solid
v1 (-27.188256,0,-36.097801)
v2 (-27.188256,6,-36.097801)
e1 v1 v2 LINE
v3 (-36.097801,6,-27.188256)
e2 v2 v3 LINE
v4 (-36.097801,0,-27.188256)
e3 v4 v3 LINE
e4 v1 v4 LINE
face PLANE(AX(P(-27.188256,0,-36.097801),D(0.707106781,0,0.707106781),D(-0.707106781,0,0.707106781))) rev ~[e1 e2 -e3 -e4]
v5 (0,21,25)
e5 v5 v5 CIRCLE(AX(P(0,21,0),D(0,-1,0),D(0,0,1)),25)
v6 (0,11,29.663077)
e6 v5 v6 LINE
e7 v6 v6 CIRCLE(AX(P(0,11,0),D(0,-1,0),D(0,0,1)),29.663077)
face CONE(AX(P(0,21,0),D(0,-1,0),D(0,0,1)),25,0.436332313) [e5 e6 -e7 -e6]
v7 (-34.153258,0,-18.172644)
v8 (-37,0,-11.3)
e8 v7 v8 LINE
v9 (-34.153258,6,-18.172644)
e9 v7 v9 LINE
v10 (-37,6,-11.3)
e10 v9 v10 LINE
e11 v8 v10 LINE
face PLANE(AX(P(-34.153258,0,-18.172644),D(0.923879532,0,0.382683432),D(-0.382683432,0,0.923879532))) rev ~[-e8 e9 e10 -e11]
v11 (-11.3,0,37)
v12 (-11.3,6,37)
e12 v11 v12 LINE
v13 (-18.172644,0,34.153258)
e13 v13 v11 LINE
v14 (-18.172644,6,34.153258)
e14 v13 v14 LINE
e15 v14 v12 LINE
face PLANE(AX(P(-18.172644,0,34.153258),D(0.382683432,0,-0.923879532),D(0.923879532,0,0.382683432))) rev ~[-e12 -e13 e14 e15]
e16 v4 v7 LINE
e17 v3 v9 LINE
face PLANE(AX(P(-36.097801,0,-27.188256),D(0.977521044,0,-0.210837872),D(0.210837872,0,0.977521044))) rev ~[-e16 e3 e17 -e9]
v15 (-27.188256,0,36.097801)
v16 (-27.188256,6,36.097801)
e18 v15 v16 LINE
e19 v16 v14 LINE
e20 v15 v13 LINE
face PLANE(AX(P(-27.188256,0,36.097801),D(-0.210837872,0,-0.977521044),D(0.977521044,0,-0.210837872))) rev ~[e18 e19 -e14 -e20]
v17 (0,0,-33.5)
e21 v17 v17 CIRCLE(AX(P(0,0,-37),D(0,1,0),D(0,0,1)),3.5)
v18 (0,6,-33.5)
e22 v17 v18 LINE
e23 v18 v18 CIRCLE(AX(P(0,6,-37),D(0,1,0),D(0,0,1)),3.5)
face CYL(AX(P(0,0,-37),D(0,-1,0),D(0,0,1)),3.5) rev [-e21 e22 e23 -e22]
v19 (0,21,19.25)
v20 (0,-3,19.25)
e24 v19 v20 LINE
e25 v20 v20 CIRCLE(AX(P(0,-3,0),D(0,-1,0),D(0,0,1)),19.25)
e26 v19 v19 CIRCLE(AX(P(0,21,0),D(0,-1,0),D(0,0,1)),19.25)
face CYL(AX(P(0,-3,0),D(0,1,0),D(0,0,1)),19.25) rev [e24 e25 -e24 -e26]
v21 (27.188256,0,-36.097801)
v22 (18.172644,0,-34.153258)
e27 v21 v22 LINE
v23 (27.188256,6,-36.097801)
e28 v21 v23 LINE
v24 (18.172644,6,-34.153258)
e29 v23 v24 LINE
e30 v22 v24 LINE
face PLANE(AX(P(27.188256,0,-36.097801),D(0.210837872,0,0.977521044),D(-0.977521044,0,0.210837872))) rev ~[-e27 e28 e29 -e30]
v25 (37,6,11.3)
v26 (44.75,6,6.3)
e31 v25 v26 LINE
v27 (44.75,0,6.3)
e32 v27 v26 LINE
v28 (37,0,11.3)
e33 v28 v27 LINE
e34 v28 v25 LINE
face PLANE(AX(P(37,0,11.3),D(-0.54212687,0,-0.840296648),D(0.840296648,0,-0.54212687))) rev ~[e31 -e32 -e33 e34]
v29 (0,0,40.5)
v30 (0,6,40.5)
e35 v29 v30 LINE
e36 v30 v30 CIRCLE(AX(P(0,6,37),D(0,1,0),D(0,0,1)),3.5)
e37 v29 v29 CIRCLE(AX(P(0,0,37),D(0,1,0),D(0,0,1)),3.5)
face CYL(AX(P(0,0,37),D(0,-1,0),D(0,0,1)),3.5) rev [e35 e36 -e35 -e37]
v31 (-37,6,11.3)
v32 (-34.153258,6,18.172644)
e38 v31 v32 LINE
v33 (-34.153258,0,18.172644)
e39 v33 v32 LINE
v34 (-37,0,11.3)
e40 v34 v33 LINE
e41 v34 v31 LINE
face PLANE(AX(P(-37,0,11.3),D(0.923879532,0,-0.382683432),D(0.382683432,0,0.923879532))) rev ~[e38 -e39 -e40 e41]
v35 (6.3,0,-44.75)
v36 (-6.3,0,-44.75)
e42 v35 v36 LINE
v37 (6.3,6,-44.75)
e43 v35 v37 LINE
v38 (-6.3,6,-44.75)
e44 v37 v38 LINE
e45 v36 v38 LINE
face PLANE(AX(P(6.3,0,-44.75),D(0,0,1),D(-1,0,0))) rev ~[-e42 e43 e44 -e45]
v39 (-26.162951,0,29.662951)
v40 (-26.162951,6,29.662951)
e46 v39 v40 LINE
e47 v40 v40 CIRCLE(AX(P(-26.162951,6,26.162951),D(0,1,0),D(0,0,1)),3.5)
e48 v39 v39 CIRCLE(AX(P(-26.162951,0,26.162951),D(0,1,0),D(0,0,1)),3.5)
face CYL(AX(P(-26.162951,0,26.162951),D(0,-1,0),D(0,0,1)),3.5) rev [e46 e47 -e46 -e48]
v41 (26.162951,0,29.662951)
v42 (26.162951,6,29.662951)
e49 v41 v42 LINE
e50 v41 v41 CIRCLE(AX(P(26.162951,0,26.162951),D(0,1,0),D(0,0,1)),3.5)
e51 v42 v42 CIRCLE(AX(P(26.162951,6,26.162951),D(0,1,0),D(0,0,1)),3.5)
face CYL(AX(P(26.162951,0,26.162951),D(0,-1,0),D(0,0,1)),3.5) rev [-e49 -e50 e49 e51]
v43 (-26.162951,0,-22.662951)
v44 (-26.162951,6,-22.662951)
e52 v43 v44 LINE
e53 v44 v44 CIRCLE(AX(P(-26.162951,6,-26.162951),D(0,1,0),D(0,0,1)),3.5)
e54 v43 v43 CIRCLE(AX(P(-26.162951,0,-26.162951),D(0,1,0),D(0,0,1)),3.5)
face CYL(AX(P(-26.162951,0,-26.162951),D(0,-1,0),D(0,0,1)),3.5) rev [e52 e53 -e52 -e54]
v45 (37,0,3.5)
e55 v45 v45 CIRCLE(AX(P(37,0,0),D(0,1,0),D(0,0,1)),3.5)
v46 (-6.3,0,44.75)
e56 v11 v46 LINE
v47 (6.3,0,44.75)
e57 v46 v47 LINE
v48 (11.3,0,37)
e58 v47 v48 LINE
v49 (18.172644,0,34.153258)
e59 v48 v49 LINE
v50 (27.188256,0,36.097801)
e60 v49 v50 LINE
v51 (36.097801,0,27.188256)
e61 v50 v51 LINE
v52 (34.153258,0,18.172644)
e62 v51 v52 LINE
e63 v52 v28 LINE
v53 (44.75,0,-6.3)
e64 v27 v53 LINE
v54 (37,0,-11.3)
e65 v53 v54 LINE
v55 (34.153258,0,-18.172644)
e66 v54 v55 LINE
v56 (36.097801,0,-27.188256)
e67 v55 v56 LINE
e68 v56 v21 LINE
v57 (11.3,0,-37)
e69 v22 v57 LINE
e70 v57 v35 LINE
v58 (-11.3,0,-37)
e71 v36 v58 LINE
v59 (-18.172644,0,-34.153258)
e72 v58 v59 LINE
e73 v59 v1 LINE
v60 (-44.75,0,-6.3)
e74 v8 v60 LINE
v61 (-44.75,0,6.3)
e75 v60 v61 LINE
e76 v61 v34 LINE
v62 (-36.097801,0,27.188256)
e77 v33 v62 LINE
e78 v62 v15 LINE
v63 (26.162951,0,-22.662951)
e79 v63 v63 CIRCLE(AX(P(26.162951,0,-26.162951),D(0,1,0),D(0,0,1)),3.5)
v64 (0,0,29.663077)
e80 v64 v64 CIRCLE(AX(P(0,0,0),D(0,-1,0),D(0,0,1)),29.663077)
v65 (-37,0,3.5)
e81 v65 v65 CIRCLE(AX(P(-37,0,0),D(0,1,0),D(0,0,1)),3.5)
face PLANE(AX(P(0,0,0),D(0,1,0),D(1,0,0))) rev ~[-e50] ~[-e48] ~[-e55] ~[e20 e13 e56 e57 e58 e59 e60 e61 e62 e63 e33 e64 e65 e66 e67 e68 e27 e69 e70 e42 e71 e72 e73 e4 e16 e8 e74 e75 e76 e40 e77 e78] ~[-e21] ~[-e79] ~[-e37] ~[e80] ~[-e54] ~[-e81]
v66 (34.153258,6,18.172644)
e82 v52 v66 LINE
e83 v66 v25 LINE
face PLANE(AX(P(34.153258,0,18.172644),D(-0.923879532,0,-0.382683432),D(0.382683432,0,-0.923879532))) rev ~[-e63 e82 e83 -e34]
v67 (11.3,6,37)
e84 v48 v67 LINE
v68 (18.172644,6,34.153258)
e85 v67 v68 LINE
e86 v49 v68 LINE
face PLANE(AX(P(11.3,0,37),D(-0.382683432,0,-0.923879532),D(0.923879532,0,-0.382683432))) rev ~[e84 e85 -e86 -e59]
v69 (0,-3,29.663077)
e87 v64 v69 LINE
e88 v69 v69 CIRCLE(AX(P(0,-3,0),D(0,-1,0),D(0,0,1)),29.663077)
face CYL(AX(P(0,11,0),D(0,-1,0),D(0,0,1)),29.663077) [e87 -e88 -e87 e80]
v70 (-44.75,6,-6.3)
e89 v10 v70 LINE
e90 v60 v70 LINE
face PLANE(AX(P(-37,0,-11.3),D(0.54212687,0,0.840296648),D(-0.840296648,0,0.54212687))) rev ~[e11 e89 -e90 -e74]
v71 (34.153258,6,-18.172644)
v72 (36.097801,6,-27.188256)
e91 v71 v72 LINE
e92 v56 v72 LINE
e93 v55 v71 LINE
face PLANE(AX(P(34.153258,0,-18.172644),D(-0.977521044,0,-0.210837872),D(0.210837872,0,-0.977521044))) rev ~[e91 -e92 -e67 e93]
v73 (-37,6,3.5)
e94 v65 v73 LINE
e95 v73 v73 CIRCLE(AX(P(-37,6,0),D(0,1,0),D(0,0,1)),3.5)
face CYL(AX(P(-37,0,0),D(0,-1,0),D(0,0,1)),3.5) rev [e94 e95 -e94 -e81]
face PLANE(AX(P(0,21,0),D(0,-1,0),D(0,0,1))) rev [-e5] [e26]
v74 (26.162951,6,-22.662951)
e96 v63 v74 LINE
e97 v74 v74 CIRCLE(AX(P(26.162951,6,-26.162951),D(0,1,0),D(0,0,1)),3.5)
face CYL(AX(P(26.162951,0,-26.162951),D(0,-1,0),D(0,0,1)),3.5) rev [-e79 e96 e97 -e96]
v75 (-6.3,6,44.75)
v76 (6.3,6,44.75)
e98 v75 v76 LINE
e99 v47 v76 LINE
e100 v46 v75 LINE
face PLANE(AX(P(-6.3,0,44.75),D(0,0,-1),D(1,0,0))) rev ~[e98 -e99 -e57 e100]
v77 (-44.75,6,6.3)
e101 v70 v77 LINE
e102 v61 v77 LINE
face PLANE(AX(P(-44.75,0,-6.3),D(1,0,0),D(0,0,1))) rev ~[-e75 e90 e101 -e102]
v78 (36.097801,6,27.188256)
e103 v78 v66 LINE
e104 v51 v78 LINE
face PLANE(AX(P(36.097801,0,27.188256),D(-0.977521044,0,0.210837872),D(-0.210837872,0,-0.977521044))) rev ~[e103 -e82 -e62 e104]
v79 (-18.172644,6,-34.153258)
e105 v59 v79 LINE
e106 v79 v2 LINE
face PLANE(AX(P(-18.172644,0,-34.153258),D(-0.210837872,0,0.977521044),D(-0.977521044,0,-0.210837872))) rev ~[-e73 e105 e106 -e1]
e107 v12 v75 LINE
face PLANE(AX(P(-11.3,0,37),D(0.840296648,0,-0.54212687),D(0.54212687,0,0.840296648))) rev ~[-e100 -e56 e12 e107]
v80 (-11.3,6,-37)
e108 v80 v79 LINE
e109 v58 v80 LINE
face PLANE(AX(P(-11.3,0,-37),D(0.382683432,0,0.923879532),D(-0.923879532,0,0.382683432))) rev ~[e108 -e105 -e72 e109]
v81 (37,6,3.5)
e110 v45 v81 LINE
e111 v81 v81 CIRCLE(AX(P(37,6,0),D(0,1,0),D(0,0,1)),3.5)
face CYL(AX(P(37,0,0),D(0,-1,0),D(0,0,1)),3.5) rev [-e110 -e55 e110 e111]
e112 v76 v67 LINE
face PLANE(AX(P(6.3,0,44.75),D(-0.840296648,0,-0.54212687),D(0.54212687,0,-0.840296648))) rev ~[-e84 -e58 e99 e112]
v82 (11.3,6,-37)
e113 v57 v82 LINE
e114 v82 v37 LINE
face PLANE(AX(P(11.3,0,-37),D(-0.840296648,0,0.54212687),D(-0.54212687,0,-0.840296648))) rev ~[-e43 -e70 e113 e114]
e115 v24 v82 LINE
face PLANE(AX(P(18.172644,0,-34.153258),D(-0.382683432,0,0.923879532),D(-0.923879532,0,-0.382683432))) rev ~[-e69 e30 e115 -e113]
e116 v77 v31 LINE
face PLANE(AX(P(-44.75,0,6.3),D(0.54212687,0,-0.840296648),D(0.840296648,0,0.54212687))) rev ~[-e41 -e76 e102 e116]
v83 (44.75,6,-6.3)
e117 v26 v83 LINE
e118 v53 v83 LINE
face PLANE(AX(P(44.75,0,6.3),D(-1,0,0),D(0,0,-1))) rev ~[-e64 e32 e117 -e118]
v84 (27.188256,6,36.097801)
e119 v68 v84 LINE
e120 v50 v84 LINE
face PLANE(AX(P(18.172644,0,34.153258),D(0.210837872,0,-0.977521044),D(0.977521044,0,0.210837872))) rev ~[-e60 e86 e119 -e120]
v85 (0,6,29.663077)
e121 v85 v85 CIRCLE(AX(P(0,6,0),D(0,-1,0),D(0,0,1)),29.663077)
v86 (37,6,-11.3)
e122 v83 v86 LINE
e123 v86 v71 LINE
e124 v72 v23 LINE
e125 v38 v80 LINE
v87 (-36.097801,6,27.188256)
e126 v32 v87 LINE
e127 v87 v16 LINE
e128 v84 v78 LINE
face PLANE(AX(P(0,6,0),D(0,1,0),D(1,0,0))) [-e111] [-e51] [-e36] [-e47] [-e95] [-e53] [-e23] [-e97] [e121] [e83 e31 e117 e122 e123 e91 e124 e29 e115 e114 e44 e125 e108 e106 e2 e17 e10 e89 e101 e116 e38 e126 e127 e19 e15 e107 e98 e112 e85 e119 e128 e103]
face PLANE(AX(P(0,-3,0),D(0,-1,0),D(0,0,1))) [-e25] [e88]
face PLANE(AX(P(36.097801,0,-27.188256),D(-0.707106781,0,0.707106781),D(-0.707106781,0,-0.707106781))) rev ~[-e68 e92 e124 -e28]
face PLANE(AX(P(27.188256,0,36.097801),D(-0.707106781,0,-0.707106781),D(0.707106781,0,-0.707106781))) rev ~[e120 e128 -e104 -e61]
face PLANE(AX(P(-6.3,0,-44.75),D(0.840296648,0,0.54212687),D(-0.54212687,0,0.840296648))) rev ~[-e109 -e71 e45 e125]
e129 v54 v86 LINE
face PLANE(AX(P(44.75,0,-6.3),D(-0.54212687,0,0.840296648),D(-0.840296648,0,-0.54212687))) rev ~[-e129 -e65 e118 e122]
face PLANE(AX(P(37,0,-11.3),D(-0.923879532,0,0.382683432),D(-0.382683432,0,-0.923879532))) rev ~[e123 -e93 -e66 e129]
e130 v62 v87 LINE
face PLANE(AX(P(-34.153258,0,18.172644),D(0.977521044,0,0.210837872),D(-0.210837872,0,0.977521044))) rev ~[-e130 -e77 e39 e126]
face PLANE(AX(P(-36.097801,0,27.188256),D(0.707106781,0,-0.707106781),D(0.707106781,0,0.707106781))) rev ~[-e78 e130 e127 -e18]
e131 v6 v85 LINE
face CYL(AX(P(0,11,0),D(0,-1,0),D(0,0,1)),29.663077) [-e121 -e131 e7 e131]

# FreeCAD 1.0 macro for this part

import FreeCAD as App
import Part
import Sketcher
from FreeCAD import Vector
Q = App.Units.Quantity


def add_polygon(sketch, points):
    """Adds a closed chain of lines whose ends are joined by coincident constraints."""
    first, n = sketch.GeometryCount, len(points)
    for a, b in zip(points, points[1:] + points[:1]):
        sketch.addGeometry(Part.LineSegment(App.Vector(*a, 0), App.Vector(*b, 0)), False)
    for i in range(n):
        sketch.addConstraint(Sketcher.Constraint("Coincident", first + i, 2, first + (i + 1) % n, 1))

doc = App.newDocument("Part")
body = doc.addObject("PartDesign::Body", "Body")

sketch1 = body.newObject("Sketcher::SketchObject", "Sketch")
sketch1.AttachmentSupport = (doc.getObject("XZ_Plane"), [""])
sketch1.MapMode = "FlatFace"
add_polygon(sketch1, [(27.2, -36.1), (18.2, -34.2), (11.3, -37), (6.3, -44.8), (-6.3, -44.8), (-11.3, -37), (-18.2, -34.2), (-27.2, -36.1), (-36.1, -27.2), (-34.2, -18.2), (-37, -11.3), (-44.8, -6.3), (-44.8, 6.3), (-37, 11.3), (-34.2, 18.2), (-36.1, 27.2), (-27.2, 36.1), (-18.2, 34.2), (-11.3, 37), (-6.3, 44.8), (6.3, 44.8), (11.3, 37), (18.2, 34.2), (27.2, 36.1), (36.1, 27.2), (34.2, 18.2), (37, 11.3), (44.8, 6.3), (44.8, -6.3), (37, -11.3), (34.2, -18.2), (36.1, -27.2)])
sketch1.addGeometry(Part.Circle(Vector(-26.2, 26.2, 0), Vector(0, 0, 1), 3.5), False)
sketch1.addGeometry(Part.Circle(Vector(0, 37, 0), Vector(0, 0, 1), 3.5), False)
sketch1.addGeometry(Part.Circle(Vector(26.2, 26.2, 0), Vector(0, 0, 1), 3.5), False)
sketch1.addGeometry(Part.Circle(Vector(-37, 0, 0), Vector(0, 0, 1), 3.5), False)
sketch1.addGeometry(Part.Circle(Vector(-26.2, -26.2, 0), Vector(0, 0, 1), 3.5), False)
sketch1.addGeometry(Part.Circle(Vector(0, 0, 0), Vector(0, 0, 1), 19.2), False)
sketch1.addGeometry(Part.Circle(Vector(37, 0, 0), Vector(0, 0, 1), 3.5), False)
sketch1.addGeometry(Part.Circle(Vector(0, -37, 0), Vector(0, 0, 1), 3.5), False)
sketch1.addGeometry(Part.Circle(Vector(26.2, -26.2, 0), Vector(0, 0, 1), 3.5), False)
sketch1.addConstraint([
    Sketcher.Constraint("Horizontal", 3),
    Sketcher.Constraint("Vertical", 11),
    Sketcher.Constraint("Horizontal", 19),
    Sketcher.Constraint("Vertical", 27),
    Sketcher.Constraint("Coincident", 37, 3, -1, 1),
    Sketcher.Constraint("Equal", 32, 33),
    Sketcher.Constraint("Equal", 33, 34),
    Sketcher.Constraint("Equal", 34, 35),
    Sketcher.Constraint("Equal", 35, 36),
    Sketcher.Constraint("Equal", 36, 38),
    Sketcher.Constraint("Equal", 38, 39),
    Sketcher.Constraint("Equal", 39, 40),
    Sketcher.Constraint("Symmetric", 34, 3, 36, 3, -1, 1),
    Sketcher.Constraint("Symmetric", 35, 3, 38, 3, -1, 1),
    Sketcher.Constraint("Symmetric", 33, 3, 39, 3, -1, 1),
    Sketcher.Constraint("Symmetric", 32, 3, 40, 3, -1, 1),
    Sketcher.Constraint("Symmetric", 0, 2, 16, 2, -1, 1),
    Sketcher.Constraint("Symmetric", 1, 2, 17, 2, -1, 1),
    Sketcher.Constraint("Symmetric", 2, 2, 18, 2, -1, 1),
    Sketcher.Constraint("Symmetric", 4, 2, 20, 2, -1, 1),
    Sketcher.Constraint("Symmetric", 5, 2, 21, 2, -1, 1),
    Sketcher.Constraint("Symmetric", 6, 2, 22, 2, -1, 1),
    Sketcher.Constraint("Symmetric", 7, 2, 23, 2, -1, 1),
    Sketcher.Constraint("Symmetric", 8, 2, 24, 2, -1, 1),
    Sketcher.Constraint("Symmetric", 9, 2, 25, 2, -1, 1),
    Sketcher.Constraint("Symmetric", 10, 2, 26, 2, -1, 1),
    Sketcher.Constraint("Symmetric", 12, 2, 28, 2, -1, 1),
    Sketcher.Constraint("Symmetric", 13, 2, 29, 2, -1, 1),
    Sketcher.Constraint("Symmetric", 14, 2, 30, 2, -1, 1),
    Sketcher.Constraint("Symmetric", 15, 2, 31, 2, -1, 1),
    Sketcher.Constraint("Symmetric", 32, 3, 34, 3, -2),
    Sketcher.Constraint("Symmetric", 1, 2, 4, 2, -2),
    Sketcher.Constraint("Symmetric", 0, 2, 5, 2, -2),
    Sketcher.Constraint("Symmetric", 15, 2, 22, 2, -2),
    Sketcher.Constraint("Symmetric", 14, 2, 23, 2, -2),
    Sketcher.Constraint("Symmetric", 13, 2, 24, 2, -2),
    Sketcher.Constraint("Symmetric", 12, 2, 25, 2, -2),
    Sketcher.Constraint("PointOnObject", 33, 3, -2),
    Sketcher.Constraint("PointOnObject", 35, 3, -1),
    Sketcher.Constraint("Perpendicular", 0, 8),
    Sketcher.Constraint("Perpendicular", 1, 9),
    Sketcher.Constraint("Perpendicular", 2, 10),
    Sketcher.Constraint("Perpendicular", 4, 12),
    Sketcher.Constraint("Perpendicular", 7, 15),
    Sketcher.Constraint("Perpendicular", 12, 20),
    Sketcher.Constraint("Perpendicular", 20, 28),
    Sketcher.Constraint("Horizontal", 39, 3, 1, 2),
    Sketcher.Constraint("Horizontal", 11, 2, 26, 2),
    Sketcher.Constraint("Vertical", 35, 3, 9, 2),
    Sketcher.Constraint("Equal", 19, 11),
    Sketcher.Constraint("Equal", 0, 2),
    Sketcher.Constraint("Equal", 6, 8),
    Sketcher.Constraint("Equal", 5, 9),
    Sketcher.Constraint("Equal", 8, 10),
    Sketcher.Constraint("Diameter", 32, 7.0),
    Sketcher.Constraint("Diameter", 37, 38.5),
    Sketcher.Constraint("DistanceX", 3, 2, 3, 1, 12.6),
    Sketcher.Constraint("DistanceY", -1, 1, 33, 3, 37.0),
    Sketcher.Constraint("Angle", 1, Q("-157.5 deg")),
    Sketcher.Constraint("DistanceX", 2, 2, 1, 2, 5.0),
    Sketcher.Constraint("Distance", 7, 12.6),
    Sketcher.Constraint("DistanceY", 2, 2, -1, 1, 44.75),
    Sketcher.Constraint("DistanceY", 5, 2, 7, 2, 6.965002),
    Sketcher.Constraint("DistanceX", 32, 3, 34, 3, 52.325902),
    Sketcher.Constraint("DistanceY", 36, 3, 32, 3, 52.325902),
])
pad1 = body.newObject("PartDesign::Pad", "Pad")
pad1.Profile = sketch1
pad1.Length = 6
pad1.Reversed = True

sketch2 = body.newObject("Sketcher::SketchObject", "Sketch001")
sketch2.AttachmentSupport = (doc.getObject("XY_Plane"), [""])
sketch2.MapMode = "FlatFace"
add_polygon(sketch2, [(-19, 21), (-25, 21), (-30, 11), (-30, -3), (-19, -3)])
sketch2.addConstraint([
    Sketcher.Constraint("Horizontal", 0),
    Sketcher.Constraint("Vertical", 2),
    Sketcher.Constraint("Horizontal", 3),
    Sketcher.Constraint("Vertical", 4),
    Sketcher.Constraint("DistanceY", 2, 2, 2, 1, 14.0),
    Sketcher.Constraint("DistanceY", 4, 1, 4, 2, 24.0),
    Sketcher.Constraint("Angle", 1, Q("-115 deg")),
    Sketcher.Constraint("DistanceX", 0, 2, -1, 1, 25.0),
    Sketcher.Constraint("DistanceY", -1, 1, 0, 2, 21.0),
    Sketcher.Constraint("DistanceX", 0, 2, 0, 1, 5.75),
])
revolution = body.newObject("PartDesign::Revolution", "Revolution")
revolution.Profile = sketch2
revolution.ReferenceAxis = (sketch2, ["V_Axis"])
revolution.Angle = 360

doc.recompute()
